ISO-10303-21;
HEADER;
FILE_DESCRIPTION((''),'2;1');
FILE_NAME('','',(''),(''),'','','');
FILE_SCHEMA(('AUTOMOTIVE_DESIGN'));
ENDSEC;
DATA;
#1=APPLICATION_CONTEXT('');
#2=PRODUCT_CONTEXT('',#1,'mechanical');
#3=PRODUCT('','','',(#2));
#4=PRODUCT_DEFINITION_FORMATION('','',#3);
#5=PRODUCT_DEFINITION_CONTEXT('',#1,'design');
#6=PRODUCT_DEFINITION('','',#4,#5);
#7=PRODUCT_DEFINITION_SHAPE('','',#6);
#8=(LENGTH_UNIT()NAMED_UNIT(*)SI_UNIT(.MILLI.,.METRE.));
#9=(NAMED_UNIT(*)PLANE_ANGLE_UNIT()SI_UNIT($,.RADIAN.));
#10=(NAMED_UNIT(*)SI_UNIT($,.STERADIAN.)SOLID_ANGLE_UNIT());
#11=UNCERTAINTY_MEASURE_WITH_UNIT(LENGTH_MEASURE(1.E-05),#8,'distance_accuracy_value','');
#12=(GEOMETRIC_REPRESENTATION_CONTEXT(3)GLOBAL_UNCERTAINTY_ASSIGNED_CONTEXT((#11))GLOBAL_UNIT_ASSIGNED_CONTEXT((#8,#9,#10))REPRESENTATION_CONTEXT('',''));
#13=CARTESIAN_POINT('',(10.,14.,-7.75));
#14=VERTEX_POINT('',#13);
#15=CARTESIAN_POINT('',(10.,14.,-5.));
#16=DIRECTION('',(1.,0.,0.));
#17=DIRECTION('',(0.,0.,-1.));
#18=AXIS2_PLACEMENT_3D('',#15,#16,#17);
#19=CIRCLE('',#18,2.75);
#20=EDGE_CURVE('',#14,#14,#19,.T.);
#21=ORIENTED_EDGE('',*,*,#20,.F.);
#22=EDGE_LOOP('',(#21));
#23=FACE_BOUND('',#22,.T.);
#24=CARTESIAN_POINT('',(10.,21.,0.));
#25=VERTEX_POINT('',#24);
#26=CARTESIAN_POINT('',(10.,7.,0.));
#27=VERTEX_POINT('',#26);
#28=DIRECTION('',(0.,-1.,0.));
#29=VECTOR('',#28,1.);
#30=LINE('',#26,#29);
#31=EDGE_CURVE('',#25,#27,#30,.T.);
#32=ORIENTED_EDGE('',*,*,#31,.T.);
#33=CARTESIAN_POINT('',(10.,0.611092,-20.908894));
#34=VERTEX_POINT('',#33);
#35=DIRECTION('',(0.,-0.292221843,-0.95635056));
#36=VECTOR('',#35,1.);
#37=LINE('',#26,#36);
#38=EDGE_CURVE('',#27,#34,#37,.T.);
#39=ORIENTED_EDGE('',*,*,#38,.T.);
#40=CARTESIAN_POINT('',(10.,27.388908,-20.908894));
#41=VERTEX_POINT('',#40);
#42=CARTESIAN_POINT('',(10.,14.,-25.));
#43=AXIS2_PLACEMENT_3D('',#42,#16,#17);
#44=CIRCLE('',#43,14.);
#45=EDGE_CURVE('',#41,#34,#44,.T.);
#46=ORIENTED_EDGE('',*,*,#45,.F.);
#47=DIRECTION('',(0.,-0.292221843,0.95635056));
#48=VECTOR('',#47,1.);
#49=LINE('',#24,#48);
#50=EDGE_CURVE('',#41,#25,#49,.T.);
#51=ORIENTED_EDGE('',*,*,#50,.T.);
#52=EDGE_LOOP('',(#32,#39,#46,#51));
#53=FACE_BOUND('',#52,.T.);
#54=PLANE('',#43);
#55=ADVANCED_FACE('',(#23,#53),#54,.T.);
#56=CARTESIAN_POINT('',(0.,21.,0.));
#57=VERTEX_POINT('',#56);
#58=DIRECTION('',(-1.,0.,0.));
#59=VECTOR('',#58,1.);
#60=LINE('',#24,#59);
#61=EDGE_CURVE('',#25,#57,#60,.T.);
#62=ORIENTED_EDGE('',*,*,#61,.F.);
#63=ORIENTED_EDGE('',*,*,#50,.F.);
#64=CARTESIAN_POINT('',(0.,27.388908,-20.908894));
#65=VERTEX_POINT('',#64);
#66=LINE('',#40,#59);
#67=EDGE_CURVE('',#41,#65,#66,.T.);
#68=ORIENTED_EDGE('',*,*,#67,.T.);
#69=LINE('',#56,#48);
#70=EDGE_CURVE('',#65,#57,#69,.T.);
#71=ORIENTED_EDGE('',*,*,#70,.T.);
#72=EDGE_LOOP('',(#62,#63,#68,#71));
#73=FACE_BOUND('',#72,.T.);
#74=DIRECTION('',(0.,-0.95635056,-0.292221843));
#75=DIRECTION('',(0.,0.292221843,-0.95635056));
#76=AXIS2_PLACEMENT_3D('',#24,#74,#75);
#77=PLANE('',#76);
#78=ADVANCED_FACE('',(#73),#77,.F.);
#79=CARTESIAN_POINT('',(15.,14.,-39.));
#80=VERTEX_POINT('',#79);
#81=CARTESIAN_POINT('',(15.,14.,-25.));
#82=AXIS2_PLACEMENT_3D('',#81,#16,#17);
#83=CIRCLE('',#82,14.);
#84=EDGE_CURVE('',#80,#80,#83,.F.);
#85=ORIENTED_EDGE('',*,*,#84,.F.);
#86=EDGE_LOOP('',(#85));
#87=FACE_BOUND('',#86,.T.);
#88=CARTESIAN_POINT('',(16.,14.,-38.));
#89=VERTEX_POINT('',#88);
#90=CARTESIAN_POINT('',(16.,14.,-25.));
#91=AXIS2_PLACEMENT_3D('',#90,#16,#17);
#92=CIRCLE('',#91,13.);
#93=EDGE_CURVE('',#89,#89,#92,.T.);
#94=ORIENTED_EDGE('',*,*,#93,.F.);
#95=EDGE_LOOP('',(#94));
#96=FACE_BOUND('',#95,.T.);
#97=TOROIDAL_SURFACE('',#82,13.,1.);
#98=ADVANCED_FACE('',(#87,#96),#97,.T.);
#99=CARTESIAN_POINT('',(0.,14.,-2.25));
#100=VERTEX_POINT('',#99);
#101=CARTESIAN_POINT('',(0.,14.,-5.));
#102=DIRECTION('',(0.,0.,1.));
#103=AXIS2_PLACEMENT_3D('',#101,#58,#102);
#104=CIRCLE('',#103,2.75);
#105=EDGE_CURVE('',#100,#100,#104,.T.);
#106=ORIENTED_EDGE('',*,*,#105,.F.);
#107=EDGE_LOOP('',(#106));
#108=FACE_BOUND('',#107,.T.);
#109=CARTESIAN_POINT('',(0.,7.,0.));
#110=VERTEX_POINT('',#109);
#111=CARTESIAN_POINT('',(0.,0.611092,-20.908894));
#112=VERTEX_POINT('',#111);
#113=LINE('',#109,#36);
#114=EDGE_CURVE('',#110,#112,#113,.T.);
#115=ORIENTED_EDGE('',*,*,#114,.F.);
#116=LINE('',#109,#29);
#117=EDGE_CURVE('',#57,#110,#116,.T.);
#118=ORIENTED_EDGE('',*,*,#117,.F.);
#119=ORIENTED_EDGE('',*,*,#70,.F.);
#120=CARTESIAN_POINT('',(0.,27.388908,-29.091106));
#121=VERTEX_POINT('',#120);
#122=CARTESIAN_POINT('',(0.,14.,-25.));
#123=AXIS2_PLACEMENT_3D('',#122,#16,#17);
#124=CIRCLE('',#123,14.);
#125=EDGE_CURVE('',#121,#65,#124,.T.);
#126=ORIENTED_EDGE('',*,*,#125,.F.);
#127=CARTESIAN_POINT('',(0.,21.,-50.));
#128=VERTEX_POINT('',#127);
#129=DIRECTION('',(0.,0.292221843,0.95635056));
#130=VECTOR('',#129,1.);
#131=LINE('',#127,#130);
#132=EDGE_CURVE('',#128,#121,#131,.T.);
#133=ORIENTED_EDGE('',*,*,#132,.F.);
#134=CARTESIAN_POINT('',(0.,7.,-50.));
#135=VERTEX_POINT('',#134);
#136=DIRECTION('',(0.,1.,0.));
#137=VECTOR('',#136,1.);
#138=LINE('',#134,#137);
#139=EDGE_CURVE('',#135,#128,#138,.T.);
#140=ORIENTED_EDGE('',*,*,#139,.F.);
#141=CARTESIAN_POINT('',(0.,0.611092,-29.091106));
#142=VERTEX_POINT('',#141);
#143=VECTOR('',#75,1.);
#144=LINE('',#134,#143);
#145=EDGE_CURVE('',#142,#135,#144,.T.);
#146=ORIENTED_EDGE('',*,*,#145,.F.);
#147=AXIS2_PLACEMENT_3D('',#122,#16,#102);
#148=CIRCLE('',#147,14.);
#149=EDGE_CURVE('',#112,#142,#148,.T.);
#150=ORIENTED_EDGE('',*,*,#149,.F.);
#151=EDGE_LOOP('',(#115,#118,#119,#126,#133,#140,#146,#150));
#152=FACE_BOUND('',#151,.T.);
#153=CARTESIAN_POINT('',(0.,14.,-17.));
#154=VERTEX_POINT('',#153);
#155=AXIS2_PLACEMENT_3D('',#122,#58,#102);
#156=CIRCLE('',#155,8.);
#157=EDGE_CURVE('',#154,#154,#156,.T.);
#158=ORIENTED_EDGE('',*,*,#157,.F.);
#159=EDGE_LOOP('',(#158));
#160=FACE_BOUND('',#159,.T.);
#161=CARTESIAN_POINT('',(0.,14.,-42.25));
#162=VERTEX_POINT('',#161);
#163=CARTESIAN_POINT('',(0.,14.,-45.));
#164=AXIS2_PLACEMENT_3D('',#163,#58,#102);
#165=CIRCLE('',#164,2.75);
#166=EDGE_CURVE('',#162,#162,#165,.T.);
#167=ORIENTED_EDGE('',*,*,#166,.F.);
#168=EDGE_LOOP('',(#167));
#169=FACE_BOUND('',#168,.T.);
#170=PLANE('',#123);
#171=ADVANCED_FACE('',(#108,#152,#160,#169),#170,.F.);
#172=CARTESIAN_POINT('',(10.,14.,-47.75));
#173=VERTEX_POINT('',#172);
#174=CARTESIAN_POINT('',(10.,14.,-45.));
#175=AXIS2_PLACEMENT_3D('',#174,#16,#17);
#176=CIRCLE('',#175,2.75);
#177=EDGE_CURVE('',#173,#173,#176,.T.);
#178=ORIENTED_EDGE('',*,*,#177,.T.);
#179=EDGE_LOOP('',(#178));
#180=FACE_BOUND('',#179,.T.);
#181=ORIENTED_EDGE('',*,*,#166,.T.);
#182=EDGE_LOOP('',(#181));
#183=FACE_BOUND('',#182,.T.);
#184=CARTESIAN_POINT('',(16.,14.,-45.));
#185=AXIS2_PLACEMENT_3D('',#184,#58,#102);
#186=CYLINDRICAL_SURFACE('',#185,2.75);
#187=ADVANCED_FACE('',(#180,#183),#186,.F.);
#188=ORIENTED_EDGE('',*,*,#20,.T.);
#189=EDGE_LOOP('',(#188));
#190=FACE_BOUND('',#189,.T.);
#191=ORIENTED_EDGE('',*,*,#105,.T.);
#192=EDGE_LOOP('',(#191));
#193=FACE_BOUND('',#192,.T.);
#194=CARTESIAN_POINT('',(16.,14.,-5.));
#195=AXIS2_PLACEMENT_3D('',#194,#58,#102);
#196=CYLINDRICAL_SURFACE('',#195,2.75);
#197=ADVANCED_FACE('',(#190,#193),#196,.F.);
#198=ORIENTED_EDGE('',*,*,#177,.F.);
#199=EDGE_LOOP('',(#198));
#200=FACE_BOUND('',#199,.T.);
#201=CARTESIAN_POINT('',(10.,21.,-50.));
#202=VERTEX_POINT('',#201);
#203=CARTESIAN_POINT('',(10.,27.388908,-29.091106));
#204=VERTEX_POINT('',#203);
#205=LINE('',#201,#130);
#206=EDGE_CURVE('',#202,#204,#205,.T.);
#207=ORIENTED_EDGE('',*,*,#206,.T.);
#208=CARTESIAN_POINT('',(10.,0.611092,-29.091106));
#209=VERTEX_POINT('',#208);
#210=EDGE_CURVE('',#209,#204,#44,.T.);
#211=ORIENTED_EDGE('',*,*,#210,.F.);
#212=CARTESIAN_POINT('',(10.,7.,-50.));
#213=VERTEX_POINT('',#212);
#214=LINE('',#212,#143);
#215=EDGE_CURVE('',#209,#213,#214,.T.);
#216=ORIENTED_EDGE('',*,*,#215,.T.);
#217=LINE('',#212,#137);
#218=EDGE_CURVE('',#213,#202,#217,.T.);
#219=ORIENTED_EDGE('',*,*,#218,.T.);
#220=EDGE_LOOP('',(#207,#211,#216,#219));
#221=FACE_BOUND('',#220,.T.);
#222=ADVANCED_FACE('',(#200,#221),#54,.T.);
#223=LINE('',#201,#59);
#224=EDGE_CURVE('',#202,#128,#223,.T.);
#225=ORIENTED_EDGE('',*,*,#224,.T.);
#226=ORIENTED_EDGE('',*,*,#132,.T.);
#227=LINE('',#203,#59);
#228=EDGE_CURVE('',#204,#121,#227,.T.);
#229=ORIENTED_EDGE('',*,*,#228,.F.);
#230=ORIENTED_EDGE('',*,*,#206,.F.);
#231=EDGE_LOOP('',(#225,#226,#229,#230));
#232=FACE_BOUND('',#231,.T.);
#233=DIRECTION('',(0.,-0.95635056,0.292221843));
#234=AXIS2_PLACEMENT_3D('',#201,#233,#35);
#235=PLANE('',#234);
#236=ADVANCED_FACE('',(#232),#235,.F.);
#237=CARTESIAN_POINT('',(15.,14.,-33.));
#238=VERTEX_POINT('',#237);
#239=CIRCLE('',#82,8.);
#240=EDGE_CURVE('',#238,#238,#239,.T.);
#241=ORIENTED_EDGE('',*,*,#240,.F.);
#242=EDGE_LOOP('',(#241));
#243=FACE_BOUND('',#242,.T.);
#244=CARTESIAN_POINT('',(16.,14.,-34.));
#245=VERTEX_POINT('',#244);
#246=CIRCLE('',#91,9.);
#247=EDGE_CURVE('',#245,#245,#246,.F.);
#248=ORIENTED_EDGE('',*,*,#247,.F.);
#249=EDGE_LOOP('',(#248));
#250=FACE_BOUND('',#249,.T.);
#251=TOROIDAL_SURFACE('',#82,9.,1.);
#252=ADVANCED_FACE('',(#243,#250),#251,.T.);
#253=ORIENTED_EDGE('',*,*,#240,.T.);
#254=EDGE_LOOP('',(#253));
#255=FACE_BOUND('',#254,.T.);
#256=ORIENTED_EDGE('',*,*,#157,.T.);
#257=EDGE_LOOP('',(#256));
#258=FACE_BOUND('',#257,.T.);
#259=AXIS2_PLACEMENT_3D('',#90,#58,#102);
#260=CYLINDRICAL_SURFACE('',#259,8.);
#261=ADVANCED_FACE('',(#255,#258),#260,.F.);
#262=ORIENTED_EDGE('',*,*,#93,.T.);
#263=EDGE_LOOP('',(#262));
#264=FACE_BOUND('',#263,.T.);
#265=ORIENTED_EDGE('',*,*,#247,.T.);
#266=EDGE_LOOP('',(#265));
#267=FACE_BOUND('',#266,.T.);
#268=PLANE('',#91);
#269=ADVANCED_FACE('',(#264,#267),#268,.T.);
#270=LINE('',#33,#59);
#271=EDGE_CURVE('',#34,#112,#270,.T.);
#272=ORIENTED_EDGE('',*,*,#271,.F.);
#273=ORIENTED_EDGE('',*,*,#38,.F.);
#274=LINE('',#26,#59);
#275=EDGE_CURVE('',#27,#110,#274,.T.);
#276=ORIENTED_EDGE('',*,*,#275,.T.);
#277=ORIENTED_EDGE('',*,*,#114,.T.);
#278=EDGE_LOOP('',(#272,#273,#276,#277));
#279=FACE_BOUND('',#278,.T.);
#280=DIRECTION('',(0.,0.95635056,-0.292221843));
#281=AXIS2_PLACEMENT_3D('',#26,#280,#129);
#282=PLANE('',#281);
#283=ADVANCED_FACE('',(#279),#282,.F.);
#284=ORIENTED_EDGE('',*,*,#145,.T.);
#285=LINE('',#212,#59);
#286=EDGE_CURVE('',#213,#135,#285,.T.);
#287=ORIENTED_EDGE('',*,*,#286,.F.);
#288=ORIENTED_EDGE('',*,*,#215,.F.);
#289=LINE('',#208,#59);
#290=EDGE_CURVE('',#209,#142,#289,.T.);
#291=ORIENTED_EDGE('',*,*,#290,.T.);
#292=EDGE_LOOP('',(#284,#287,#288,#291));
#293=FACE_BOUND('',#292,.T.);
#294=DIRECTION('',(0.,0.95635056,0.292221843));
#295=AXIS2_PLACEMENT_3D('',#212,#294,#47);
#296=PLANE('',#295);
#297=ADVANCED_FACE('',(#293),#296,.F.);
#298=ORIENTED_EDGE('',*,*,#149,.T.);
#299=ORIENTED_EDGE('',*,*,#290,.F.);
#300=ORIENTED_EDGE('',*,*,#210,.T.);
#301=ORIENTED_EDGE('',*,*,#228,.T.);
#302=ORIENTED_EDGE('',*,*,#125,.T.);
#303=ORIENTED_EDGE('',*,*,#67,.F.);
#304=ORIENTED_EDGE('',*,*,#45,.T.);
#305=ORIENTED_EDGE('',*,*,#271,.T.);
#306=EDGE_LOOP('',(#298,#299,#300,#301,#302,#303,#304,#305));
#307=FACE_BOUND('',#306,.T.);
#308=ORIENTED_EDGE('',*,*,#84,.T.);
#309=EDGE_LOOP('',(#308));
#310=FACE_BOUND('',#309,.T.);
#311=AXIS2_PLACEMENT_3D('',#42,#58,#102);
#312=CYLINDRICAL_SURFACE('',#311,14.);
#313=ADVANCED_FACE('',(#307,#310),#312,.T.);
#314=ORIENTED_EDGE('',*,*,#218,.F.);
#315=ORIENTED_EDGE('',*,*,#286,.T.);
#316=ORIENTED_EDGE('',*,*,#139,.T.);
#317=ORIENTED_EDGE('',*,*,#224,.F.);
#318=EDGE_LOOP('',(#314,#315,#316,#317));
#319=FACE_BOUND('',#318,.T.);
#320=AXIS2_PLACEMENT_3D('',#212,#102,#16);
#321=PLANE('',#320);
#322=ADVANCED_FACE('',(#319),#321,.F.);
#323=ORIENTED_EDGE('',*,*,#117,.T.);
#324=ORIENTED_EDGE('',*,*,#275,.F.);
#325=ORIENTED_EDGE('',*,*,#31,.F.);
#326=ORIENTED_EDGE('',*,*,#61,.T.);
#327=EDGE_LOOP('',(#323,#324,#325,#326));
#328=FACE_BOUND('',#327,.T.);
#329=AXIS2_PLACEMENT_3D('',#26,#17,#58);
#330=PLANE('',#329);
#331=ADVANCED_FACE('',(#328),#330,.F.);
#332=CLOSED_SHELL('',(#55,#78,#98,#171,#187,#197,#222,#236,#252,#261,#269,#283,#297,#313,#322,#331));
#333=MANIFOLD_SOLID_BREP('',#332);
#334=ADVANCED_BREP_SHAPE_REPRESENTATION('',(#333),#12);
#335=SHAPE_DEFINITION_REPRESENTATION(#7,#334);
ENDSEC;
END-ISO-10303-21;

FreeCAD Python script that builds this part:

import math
import FreeCAD as App
import Part
import Sketcher
from FreeCAD import Vector
Q = App.Units.Quantity


def edges_at(feature, points):
    """Names of the edges that pass closest to the given points."""
    edges = feature.Shape.Edges
    near = lambda p: min(range(len(edges)), key=lambda i: edges[i].distToShape(Part.Vertex(*p))[0])
    return sorted({f"Edge{near(p) + 1}" for p in points})

doc = App.newDocument("Part")
body = doc.addObject("PartDesign::Body", "Body")

# Sketch on YZ plane
sketch1 = body.newObject("Sketcher::SketchObject", "Sketch")
sketch1.AttachmentSupport = (doc.getObject("YZ_Plane"), [""])
sketch1.MapMode = "FlatFace"
sketch1.addGeometry([
    Part.LineSegment(Vector(0.611092, -29.091106, 0), Vector(7, -50, 0)),  # 0
    Part.LineSegment(Vector(7, -50, 0), Vector(21, -50, 0)),  # 1
    Part.LineSegment(Vector(21, -50, 0), Vector(27.388908, -29.091106, 0)),  # 2
    Part.ArcOfCircle(Part.Circle(Vector(13.999995, -25, 0), Vector(0, 0, 1), 14.000005), math.radians(-16.991016), math.radians(16.991016)),  # 3
    Part.LineSegment(Vector(27.388908, -20.908894, 0), Vector(21, 0, 0)),  # 4
    Part.LineSegment(Vector(21, 0, 0), Vector(7, 0, 0)),  # 5
    Part.LineSegment(Vector(7, 0, 0), Vector(0.611092, -20.908894, 0)),  # 6
    Part.ArcOfCircle(Part.Circle(Vector(14.000005, -25, 0), Vector(0, 0, 1), 14.000005), math.radians(163.008984), math.radians(196.991016)),  # 7
], False)
sketch1.addConstraint([
    Sketcher.Constraint("Coincident", 0, 2, 1, 1),
    Sketcher.Constraint("Coincident", 1, 2, 2, 1),
    Sketcher.Constraint("Tangent", 2, 2, 3, 1),
    Sketcher.Constraint("Tangent", 3, 2, 4, 1),
    Sketcher.Constraint("Coincident", 4, 2, 5, 1),
    Sketcher.Constraint("Coincident", 5, 2, 6, 1),
    Sketcher.Constraint("Tangent", 6, 2, 7, 1),
    Sketcher.Constraint("Tangent", 7, 2, 0, 1),
    Sketcher.Constraint("Horizontal", 1),
    Sketcher.Constraint("Horizontal", 5),
    Sketcher.Constraint("Coincident", 7, 3, 3, 3),
    Sketcher.Constraint("Equal", 3, 7),
    Sketcher.Constraint("PointOnObject", 4, 2, -1),
    Sketcher.Constraint("Parallel", 0, 4),
    Sketcher.Constraint("Parallel", 2, 6),
    Sketcher.Constraint("Horizontal", 3, 2, 6, 2),
    Sketcher.Constraint("Vertical", 1, 2, 4, 2),
    Sketcher.Constraint("DistanceX", 1, 1, 1, 2, Q("14 mm")),
    Sketcher.Constraint("DistanceY", 3, 3, -1, 1, Q("25 mm")),
    Sketcher.Constraint("DistanceX", -1, 1, 0, 2, Q("7 mm")),
    Sketcher.Constraint("Radius", 3, Q("14.000005 mm")),
])
pad1 = body.newObject("PartDesign::Pad", "Pad")
pad1.Profile = sketch1
pad1.Length = 10

# Sketch on YZ plane
sketch2 = body.newObject("Sketcher::SketchObject", "Sketch001")
sketch2.AttachmentSupport = (doc.getObject("YZ_Plane"), [""])
sketch2.MapMode = "FlatFace"
sketch2.AttachmentOffset = App.Placement(Vector(0, 0, 10), App.Rotation())
sketch2.addGeometry(Part.Circle(Vector(14, -25, 0), Vector(0, 0, 1), 14), False)
sketch2.addConstraint([
    Sketcher.Constraint("Diameter", 0, Q("28 mm")),
    Sketcher.Constraint("DistanceX", -1, 1, 0, 3, Q("14 mm")),
    Sketcher.Constraint("DistanceY", 0, 3, -1, 1, Q("25 mm")),
])
pad2 = body.newObject("PartDesign::Pad", "Pad001")
pad2.Profile = sketch2
pad2.Length = 6

# Sketch on YZ plane
sketch3 = body.newObject("Sketcher::SketchObject", "Sketch002")
sketch3.AttachmentSupport = (doc.getObject("YZ_Plane"), [""])
sketch3.MapMode = "FlatFace"
sketch3.addGeometry([
    Part.Circle(Vector(14, -45, 0), Vector(0, 0, 1), 2.75),
    Part.Circle(Vector(14, -25, 0), Vector(0, 0, 1), 8),
    Part.Circle(Vector(14, -5, 0), Vector(0, 0, 1), 2.75),
], False)
sketch3.addConstraint([
    Sketcher.Constraint("Equal", 0, 2),
    Sketcher.Constraint("Vertical", 0, 3, 1, 3),
    Sketcher.Constraint("Vertical", 1, 3, 2, 3),
    Sketcher.Constraint("Diameter", 1, Q("16 mm")),
    Sketcher.Constraint("Diameter", 0, Q("5.5 mm")),
    Sketcher.Constraint("DistanceX", -1, 1, 0, 3, Q("14 mm")),
    Sketcher.Constraint("DistanceY", 0, 3, -1, 1, Q("45 mm")),
    Sketcher.Constraint("DistanceY", 1, 3, -1, 1, Q("25 mm")),
    Sketcher.Constraint("DistanceY", 2, 3, -1, 1, Q("5 mm")),
])
pocket1 = body.newObject("PartDesign::Pocket", "Pocket")
pocket1.Profile = sketch3
pocket1.Length = 16
pocket1.Reversed = True
doc.recompute()

fillet = body.newObject("PartDesign::Fillet", "Fillet")
fillet.Base = (pocket1, edges_at(pocket1, [(16, 27.389, -29.091), (16, 14, -33)]))
fillet.Radius = 1

doc.recompute()
